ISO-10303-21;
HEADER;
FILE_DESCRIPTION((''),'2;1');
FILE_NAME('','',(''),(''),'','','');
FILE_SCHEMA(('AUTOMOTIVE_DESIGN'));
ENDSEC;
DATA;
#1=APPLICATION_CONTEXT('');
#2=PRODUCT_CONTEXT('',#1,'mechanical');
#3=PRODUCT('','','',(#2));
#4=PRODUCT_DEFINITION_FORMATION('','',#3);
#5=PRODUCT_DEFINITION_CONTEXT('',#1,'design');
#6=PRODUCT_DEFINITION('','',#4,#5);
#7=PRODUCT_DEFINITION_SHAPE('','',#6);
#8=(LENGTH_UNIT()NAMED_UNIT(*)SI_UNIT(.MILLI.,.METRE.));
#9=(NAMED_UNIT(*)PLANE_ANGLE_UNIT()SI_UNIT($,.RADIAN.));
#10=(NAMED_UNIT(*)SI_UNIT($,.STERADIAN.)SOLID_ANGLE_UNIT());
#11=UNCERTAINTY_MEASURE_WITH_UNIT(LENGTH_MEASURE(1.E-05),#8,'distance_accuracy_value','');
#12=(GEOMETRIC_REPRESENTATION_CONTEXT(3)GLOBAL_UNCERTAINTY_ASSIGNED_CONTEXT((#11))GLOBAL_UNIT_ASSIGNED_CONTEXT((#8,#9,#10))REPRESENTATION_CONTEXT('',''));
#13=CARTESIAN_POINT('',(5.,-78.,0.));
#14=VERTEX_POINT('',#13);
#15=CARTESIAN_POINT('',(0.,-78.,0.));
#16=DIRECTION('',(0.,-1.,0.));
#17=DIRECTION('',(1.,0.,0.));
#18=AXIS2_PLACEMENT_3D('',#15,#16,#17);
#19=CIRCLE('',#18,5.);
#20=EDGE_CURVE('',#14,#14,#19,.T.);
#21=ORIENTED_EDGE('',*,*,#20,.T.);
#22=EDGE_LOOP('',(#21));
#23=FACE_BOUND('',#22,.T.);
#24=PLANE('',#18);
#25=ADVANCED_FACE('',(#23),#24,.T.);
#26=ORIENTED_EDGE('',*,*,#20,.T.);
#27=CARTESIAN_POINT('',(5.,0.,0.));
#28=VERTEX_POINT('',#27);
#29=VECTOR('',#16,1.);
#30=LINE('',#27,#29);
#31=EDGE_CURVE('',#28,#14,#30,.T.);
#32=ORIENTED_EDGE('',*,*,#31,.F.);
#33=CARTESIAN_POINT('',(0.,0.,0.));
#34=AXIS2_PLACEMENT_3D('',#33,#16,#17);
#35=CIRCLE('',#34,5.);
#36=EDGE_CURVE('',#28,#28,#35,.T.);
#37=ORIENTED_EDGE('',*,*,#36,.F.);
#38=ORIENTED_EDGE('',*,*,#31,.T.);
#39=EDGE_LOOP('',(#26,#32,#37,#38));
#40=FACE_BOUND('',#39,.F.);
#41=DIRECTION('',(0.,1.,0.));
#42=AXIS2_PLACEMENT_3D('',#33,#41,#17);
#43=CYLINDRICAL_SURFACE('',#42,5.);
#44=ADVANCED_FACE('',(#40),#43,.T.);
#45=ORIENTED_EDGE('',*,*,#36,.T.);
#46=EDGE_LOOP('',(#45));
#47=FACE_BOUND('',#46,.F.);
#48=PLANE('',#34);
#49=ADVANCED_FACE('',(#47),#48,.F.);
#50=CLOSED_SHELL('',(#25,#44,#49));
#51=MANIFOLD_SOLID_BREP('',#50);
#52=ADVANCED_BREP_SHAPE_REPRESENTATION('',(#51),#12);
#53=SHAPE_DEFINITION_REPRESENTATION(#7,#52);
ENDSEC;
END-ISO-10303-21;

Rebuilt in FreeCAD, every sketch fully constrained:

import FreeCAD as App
import Part
import Sketcher

doc = App.newDocument("Part")
body = doc.addObject("PartDesign::Body", "Body")

sketch1 = body.newObject("Sketcher::SketchObject", "Sketch")
sketch1.AttachmentSupport = (doc.getObject("XZ_Plane"), [""])
sketch1.MapMode = "FlatFace"
sketch1.addGeometry(Part.Circle(App.Vector(0, 0, 0), App.Vector(0, 0, 1), 5), False)
sketch1.addConstraint(Sketcher.Constraint("Coincident", 0, 3, -1, 1))
sketch1.addConstraint(Sketcher.Constraint("Diameter", 0, 10.0))
pad1 = body.newObject("PartDesign::Pad", "Pad")
pad1.Profile = sketch1
pad1.Length = 90

sketch2 = body.newObject("Sketcher::SketchObject", "Sketch001")
sketch2.AttachmentSupport = (doc.getObject("XZ_Plane"), [""])
sketch2.MapMode = "FlatFace"
sketch2.AttachmentOffset = App.Placement(App.Vector(0, 0, 90), App.Rotation())
sketch2.addGeometry(Part.Circle(App.Vector(0, 0, 0), App.Vector(0, 0, 1), 5), False)
sketch2.addConstraint(Sketcher.Constraint("Coincident", 0, 3, -1, 1))
sketch2.addConstraint(Sketcher.Constraint("Diameter", 0, 10.0))
pocket1 = body.newObject("PartDesign::Pocket", "Pocket")
pocket1.Profile = sketch2
pocket1.Length = 12

doc.recompute()
